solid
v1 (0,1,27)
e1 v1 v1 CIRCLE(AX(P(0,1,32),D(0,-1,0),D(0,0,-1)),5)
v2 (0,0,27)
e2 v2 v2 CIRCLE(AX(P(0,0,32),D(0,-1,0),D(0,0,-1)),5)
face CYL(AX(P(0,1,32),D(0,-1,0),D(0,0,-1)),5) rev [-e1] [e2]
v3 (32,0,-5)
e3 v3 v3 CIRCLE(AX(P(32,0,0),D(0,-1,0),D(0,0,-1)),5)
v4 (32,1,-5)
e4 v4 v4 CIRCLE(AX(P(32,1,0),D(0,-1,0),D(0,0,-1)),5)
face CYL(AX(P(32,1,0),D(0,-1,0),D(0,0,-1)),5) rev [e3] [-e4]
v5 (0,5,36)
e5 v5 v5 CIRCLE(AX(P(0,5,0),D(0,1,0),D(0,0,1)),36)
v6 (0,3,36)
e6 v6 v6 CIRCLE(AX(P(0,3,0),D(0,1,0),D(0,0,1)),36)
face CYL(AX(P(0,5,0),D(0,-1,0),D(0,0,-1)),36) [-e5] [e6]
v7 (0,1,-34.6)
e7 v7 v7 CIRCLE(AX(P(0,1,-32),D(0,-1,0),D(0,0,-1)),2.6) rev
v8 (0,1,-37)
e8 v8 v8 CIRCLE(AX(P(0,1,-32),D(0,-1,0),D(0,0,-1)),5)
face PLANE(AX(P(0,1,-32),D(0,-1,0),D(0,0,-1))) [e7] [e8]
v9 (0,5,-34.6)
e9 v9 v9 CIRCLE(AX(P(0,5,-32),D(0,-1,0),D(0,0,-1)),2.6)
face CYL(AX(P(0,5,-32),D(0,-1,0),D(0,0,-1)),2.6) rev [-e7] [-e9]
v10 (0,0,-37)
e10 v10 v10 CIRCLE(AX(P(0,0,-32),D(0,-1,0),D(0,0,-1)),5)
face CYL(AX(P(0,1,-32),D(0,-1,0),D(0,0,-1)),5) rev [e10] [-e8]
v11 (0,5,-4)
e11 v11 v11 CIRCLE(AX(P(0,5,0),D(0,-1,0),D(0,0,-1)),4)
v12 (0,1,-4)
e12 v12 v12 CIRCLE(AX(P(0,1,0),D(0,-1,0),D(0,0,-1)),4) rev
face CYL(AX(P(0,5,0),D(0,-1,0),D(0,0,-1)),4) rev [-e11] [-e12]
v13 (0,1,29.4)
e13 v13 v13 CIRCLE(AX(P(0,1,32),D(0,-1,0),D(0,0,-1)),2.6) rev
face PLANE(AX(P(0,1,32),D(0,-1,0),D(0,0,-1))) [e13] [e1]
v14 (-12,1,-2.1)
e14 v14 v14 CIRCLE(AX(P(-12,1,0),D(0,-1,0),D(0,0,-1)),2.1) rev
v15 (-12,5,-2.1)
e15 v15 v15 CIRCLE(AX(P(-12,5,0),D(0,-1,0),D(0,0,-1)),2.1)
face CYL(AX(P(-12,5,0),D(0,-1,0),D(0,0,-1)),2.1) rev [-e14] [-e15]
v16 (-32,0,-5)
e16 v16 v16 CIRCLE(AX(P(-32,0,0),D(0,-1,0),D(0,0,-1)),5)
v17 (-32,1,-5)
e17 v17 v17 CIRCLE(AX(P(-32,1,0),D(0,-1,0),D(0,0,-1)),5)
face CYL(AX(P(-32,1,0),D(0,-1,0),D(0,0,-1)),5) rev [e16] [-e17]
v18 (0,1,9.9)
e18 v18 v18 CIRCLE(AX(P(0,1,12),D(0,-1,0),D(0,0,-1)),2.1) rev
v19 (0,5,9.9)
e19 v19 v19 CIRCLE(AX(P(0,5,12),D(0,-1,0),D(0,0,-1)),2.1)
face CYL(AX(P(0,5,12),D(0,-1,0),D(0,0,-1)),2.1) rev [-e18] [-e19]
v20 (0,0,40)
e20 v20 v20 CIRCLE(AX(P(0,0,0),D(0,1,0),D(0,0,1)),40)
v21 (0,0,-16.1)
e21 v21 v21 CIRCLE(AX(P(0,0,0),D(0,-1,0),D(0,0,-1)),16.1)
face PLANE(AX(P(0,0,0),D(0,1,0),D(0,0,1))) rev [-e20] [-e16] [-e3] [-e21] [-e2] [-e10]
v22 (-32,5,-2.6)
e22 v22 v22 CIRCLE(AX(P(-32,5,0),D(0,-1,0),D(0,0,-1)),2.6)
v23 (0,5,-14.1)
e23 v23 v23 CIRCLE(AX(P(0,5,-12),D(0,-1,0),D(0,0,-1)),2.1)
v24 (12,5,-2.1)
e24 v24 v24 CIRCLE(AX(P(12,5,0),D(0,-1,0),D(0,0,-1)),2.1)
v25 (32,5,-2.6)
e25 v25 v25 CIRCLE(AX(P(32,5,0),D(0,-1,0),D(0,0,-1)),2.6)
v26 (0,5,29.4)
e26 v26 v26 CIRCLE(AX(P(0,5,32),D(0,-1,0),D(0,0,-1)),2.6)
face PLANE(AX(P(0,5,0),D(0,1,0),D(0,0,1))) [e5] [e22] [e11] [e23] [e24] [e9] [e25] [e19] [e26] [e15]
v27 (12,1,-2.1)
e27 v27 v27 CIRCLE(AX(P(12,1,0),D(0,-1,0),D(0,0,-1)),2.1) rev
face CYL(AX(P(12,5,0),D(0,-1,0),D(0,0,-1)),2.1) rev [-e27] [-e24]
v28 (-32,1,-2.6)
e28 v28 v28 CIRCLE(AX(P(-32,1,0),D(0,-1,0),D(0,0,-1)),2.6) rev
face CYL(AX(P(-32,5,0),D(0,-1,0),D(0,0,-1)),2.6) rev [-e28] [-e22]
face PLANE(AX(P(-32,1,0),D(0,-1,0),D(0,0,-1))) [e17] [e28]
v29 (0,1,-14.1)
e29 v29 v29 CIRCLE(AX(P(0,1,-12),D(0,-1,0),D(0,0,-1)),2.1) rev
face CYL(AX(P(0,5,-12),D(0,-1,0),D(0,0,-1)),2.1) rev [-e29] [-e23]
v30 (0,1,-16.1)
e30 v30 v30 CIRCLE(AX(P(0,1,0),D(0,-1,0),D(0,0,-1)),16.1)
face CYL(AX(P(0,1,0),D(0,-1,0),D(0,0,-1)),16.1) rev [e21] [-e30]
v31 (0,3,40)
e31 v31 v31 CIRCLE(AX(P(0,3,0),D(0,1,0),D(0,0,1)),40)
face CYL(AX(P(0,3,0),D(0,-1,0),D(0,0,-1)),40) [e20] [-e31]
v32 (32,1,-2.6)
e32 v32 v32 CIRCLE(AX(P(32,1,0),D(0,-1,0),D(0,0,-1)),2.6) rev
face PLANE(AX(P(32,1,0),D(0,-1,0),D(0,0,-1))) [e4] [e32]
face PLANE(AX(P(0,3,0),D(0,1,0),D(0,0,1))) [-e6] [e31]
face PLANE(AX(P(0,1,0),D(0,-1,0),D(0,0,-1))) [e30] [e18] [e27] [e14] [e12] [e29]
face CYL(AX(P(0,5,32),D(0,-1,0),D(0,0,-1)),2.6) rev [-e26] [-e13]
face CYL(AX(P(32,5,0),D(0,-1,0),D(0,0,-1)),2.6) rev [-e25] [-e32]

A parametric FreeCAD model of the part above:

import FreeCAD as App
import Part
import Sketcher

doc = App.newDocument("Part")
body = doc.addObject("PartDesign::Body", "Body")

sketch1 = doc.addObject("Sketcher::SketchObject", "Sketch")
body.addObject(sketch1)
sketch1.AttachmentSupport = (doc.XZ_Plane, [""])
sketch1.MapMode = "FlatFace"
sketch1.addGeometry(Part.Circle(App.Vector(0, 0, 0), App.Vector(0, 0, 1), 40), False)
sketch1.addConstraint([
    Sketcher.Constraint("Coincident", 0, 3, -1, 1),
    Sketcher.Constraint("Diameter", 0, 80.0),
])
pad1 = doc.addObject("PartDesign::Pad", "Pad")
body.addObject(pad1)
pad1.Profile = sketch1
pad1.Length = 3
pad1.Reversed = True

sketch2 = doc.addObject("Sketcher::SketchObject", "Sketch001")
body.addObject(sketch2)
sketch2.AttachmentSupport = (doc.XZ_Plane, [""])
sketch2.MapMode = "FlatFace"
sketch2.AttachmentOffset = App.Placement(App.Vector(0, 0, -3), App.Rotation())
sketch2.addGeometry(Part.Circle(App.Vector(0, 0, 0), App.Vector(0, 0, 1), 36), False)
sketch2.addConstraint([
    Sketcher.Constraint("Coincident", 0, 3, -1, 1),
    Sketcher.Constraint("Diameter", 0, 72.0),
])
pad2 = doc.addObject("PartDesign::Pad", "Pad001")
body.addObject(pad2)
pad2.Profile = sketch2
pad2.Length = 2
pad2.Reversed = True

sketch3 = doc.addObject("Sketcher::SketchObject", "Sketch002")
body.addObject(sketch3)
sketch3.AttachmentSupport = (doc.XZ_Plane, [""])
sketch3.MapMode = "FlatFace"
sketch3.addGeometry([
    Part.Circle(App.Vector(-12, 0, 0), App.Vector(0, 0, 1), 2.1),
    Part.Circle(App.Vector(0, 12, 0), App.Vector(0, 0, 1), 2.1),
    Part.Circle(App.Vector(12, 0, 0), App.Vector(0, 0, 1), 2.1),
    Part.Circle(App.Vector(0, -12, 0), App.Vector(0, 0, 1), 2.1),
    Part.Circle(App.Vector(0, 0, 0), App.Vector(0, 0, 1), 4),
], False)
sketch3.addConstraint([
    Sketcher.Constraint("Coincident", 4, 3, -1, 1),
    Sketcher.Constraint("Equal", 0, 1),
    Sketcher.Constraint("Equal", 1, 2),
    Sketcher.Constraint("Equal", 2, 3),
    Sketcher.Constraint("Symmetric", 0, 3, 2, 3, -1, 1),
    Sketcher.Constraint("Symmetric", 1, 3, 3, 3, -1, 1),
    Sketcher.Constraint("PointOnObject", 0, 3, -1),
    Sketcher.Constraint("PointOnObject", 1, 3, -2),
    Sketcher.Constraint("Diameter", 4, 8.0),
    Sketcher.Constraint("Diameter", 0, 4.2),
    Sketcher.Constraint("DistanceX", 0, 3, -1, 1, 12.0),
    Sketcher.Constraint("DistanceY", -1, 1, 1, 3, 12.0),
])
pocket1 = doc.addObject("PartDesign::Pocket", "Pocket")
body.addObject(pocket1)
pocket1.Profile = sketch3
pocket1.Type = "ThroughAll"
pocket1.Midplane = True

sketch4 = doc.addObject("Sketcher::SketchObject", "Sketch003")
body.addObject(sketch4)
sketch4.AttachmentSupport = (doc.XZ_Plane, [""])
sketch4.MapMode = "FlatFace"
sketch4.addGeometry(Part.Circle(App.Vector(0, 0, 0), App.Vector(0, 0, 1), 16), False)
sketch4.addConstraint([
    Sketcher.Constraint("Coincident", 0, 3, -1, 1),
    Sketcher.Constraint("Diameter", 0, 32.2),
])
pocket2 = doc.addObject("PartDesign::Pocket", "Pocket001")
body.addObject(pocket2)
pocket2.Profile = sketch4
pocket2.Length = 1

sketch5 = doc.addObject("Sketcher::SketchObject", "Sketch004")
body.addObject(sketch5)
sketch5.AttachmentSupport = (doc.XZ_Plane, [""])
sketch5.MapMode = "FlatFace"
sketch5.addGeometry([
    Part.Circle(App.Vector(-32, 0, 0), App.Vector(0, 0, 1), 2.6),
    Part.Circle(App.Vector(0, 32, 0), App.Vector(0, 0, 1), 2.6),
    Part.Circle(App.Vector(32, 0, 0), App.Vector(0, 0, 1), 2.6),
    Part.Circle(App.Vector(0, -32, 0), App.Vector(0, 0, 1), 2.6),
], False)
sketch5.addConstraint([
    Sketcher.Constraint("Equal", 0, 1),
    Sketcher.Constraint("Equal", 1, 2),
    Sketcher.Constraint("Equal", 2, 3),
    Sketcher.Constraint("Symmetric", 0, 3, 2, 3, -1, 1),
    Sketcher.Constraint("Symmetric", 1, 3, 3, 3, -1, 1),
    Sketcher.Constraint("PointOnObject", 0, 3, -1),
    Sketcher.Constraint("PointOnObject", 1, 3, -2),
    Sketcher.Constraint("Diameter", 0, 5.2),
    Sketcher.Constraint("DistanceX", 0, 3, -1, 1, 32.0),
    Sketcher.Constraint("DistanceY", -1, 1, 1, 3, 32.0),
])
pocket3 = doc.addObject("PartDesign::Pocket", "Pocket002")
body.addObject(pocket3)
pocket3.Profile = sketch5
pocket3.Type = "ThroughAll"

sketch6 = doc.addObject("Sketcher::SketchObject", "Sketch005")
body.addObject(sketch6)
sketch6.AttachmentSupport = (doc.XZ_Plane, [""])
sketch6.MapMode = "FlatFace"
sketch6.addGeometry([
    Part.Circle(App.Vector(0, -32, 0), App.Vector(0, 0, 1), 5),
    Part.Circle(App.Vector(32, 0, 0), App.Vector(0, 0, 1), 5),
    Part.Circle(App.Vector(0, 32, 0), App.Vector(0, 0, 1), 5),
    Part.Circle(App.Vector(-32, 0, 0), App.Vector(0, 0, 1), 5),
], False)
sketch6.addConstraint([
    Sketcher.Constraint("Equal", 0, 1),
    Sketcher.Constraint("Equal", 1, 2),
    Sketcher.Constraint("Equal", 2, 3),
    Sketcher.Constraint("Symmetric", 0, 3, 2, 3, -1, 1),
    Sketcher.Constraint("Symmetric", 1, 3, 3, 3, -1, 1),
    Sketcher.Constraint("PointOnObject", 0, 3, -2),
    Sketcher.Constraint("PointOnObject", 1, 3, -1),
    Sketcher.Constraint("Diameter", 0, 10.0),
    Sketcher.Constraint("DistanceY", 0, 3, -1, 1, 32.0),
    Sketcher.Constraint("DistanceX", -1, 1, 1, 3, 32.0),
])
pocket4 = doc.addObject("PartDesign::Pocket", "Pocket003")
body.addObject(pocket4)
pocket4.Profile = sketch6
pocket4.Length = 1

doc.recompute()
